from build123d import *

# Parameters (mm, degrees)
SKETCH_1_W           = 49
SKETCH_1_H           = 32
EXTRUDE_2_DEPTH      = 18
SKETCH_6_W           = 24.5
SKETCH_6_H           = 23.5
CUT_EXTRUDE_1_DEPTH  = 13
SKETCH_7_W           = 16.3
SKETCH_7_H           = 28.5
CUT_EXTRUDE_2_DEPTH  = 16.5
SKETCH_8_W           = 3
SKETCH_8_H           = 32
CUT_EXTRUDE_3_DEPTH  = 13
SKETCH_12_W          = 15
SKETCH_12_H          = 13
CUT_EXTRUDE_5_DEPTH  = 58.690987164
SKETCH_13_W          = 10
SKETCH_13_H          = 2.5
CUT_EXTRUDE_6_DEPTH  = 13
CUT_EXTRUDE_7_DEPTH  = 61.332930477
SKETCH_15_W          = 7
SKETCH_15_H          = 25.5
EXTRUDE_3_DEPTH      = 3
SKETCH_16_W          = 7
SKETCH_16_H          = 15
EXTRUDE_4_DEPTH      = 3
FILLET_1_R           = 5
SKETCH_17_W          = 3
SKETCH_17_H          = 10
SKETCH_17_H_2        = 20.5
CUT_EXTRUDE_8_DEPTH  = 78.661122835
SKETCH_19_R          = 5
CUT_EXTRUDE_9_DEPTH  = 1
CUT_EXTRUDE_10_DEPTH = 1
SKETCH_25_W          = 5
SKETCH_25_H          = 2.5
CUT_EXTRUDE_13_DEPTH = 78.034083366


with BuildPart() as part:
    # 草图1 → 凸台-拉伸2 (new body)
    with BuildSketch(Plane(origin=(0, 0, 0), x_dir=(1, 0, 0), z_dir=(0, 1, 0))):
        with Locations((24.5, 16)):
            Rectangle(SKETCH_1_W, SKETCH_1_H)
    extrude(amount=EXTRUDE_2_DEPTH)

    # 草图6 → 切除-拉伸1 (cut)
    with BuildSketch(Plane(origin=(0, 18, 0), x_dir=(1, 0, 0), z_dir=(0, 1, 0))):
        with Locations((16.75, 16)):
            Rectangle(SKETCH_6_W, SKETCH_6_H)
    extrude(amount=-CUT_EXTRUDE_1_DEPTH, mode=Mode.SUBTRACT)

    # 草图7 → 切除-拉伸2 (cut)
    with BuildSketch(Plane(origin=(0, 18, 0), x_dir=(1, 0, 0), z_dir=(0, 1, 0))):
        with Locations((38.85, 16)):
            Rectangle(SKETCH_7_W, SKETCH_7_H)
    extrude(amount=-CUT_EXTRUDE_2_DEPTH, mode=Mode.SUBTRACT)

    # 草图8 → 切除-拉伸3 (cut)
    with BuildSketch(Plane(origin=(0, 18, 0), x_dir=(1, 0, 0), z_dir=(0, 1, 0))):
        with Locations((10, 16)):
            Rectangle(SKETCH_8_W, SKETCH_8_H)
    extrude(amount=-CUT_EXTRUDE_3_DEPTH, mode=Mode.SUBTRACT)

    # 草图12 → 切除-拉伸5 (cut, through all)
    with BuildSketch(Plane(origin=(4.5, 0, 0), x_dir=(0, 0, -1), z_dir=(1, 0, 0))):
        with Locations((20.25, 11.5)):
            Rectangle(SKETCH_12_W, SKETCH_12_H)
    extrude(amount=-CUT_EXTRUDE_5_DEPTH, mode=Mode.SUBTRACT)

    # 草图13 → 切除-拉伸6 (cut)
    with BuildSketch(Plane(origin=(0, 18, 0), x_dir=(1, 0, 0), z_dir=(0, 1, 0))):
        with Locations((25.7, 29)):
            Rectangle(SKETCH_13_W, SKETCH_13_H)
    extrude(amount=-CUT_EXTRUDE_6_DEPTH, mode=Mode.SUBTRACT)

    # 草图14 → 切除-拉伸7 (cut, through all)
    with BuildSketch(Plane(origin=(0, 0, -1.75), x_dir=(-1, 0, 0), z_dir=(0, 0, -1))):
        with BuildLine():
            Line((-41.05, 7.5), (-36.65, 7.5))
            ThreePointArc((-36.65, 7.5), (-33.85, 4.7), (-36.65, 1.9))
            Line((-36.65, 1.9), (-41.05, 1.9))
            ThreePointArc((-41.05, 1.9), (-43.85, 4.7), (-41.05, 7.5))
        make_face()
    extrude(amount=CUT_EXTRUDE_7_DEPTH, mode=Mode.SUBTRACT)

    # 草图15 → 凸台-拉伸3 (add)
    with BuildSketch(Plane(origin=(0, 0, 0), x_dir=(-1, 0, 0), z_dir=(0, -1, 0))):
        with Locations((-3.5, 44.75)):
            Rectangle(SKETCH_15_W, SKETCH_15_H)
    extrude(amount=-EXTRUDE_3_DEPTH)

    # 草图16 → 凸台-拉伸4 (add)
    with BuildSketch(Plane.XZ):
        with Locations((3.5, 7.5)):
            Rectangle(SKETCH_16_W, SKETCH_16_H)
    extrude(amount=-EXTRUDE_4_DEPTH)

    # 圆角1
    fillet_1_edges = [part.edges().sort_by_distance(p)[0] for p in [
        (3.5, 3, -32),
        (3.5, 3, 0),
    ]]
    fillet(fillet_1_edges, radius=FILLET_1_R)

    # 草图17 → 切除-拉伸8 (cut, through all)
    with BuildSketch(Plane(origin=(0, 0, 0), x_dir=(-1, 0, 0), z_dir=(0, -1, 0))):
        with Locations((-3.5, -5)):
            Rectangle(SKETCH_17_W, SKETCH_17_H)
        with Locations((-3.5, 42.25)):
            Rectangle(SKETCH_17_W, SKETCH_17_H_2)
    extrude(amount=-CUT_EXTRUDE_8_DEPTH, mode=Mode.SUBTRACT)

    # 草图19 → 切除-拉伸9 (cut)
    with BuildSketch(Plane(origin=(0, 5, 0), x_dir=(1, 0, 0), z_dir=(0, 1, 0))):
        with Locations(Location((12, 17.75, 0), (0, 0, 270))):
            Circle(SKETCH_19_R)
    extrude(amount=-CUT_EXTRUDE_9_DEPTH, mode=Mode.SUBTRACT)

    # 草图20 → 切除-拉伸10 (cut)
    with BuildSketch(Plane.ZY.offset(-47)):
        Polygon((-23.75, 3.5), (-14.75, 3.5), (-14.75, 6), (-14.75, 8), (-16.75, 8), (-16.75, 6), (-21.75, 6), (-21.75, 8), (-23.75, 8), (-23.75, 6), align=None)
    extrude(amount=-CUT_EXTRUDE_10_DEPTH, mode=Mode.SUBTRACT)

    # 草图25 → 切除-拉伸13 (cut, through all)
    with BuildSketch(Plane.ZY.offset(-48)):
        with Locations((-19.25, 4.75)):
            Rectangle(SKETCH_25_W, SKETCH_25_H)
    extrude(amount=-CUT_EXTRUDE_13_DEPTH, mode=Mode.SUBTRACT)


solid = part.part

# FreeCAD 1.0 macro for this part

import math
import FreeCAD as App
import Part
import Sketcher
from FreeCAD import Vector


def edges_at(feature, points):
    """Names of the edges that pass closest to the given points."""
    edges = feature.Shape.Edges
    near = lambda p: min(range(len(edges)), key=lambda i: edges[i].distToShape(Part.Vertex(*p))[0])
    return sorted({f"Edge{near(p) + 1}" for p in points})


def add_polygon(sketch, points):
    """Adds a closed chain of lines whose ends are joined by coincident constraints."""
    first, n = sketch.GeometryCount, len(points)
    for a, b in zip(points, points[1:] + points[:1]):
        sketch.addGeometry(Part.LineSegment(App.Vector(*a, 0), App.Vector(*b, 0)), False)
    for i in range(n):
        sketch.addConstraint(Sketcher.Constraint("Coincident", first + i, 2, first + (i + 1) % n, 1))

doc = App.newDocument("Part")
body = doc.addObject("PartDesign::Body", "Body")

sketch1 = body.newObject("Sketcher::SketchObject", "Sketch")
sketch1.AttachmentSupport = (doc.getObject("XZ_Plane"), [""])
sketch1.MapMode = "FlatFace"
add_polygon(sketch1, [(0, -32), (0, 0), (49, 0), (49, -32)])
sketch1.addConstraint(Sketcher.Constraint("Vertical", 0))
sketch1.addConstraint(Sketcher.Constraint("Horizontal", 1))
sketch1.addConstraint(Sketcher.Constraint("Vertical", 2))
sketch1.addConstraint(Sketcher.Constraint("Horizontal", 3))
sketch1.addConstraint(Sketcher.Constraint("Coincident", 0, 2, -1, 1))
sketch1.addConstraint(Sketcher.Constraint("DistanceX", 1, 1, 1, 2, 49.0))
sketch1.addConstraint(Sketcher.Constraint("DistanceY", 0, 1, 0, 2, 32.0))
pad1 = body.newObject("PartDesign::Pad", "Pad")
pad1.Profile = sketch1
pad1.Length = 18
pad1.Reversed = True

sketch2 = body.newObject("Sketcher::SketchObject", "Sketch001")
sketch2.AttachmentSupport = (doc.getObject("XZ_Plane"), [""])
sketch2.MapMode = "FlatFace"
sketch2.AttachmentOffset = App.Placement(Vector(0, 0, -18), App.Rotation())
add_polygon(sketch2, [(4, -28), (4, -4), (29, -4), (29, -28)])
sketch2.addConstraint(Sketcher.Constraint("Vertical", 0))
sketch2.addConstraint(Sketcher.Constraint("Horizontal", 1))
sketch2.addConstraint(Sketcher.Constraint("Vertical", 2))
sketch2.addConstraint(Sketcher.Constraint("Horizontal", 3))
sketch2.addConstraint(Sketcher.Constraint("DistanceX", 1, 1, 1, 2, 24.5))
sketch2.addConstraint(Sketcher.Constraint("DistanceY", 0, 1, 0, 2, 23.5))
sketch2.addConstraint(Sketcher.Constraint("DistanceX", -1, 1, 1, 2, 29.0))
sketch2.addConstraint(Sketcher.Constraint("DistanceY", 0, 2, -1, 1, 4.25))
pocket1 = body.newObject("PartDesign::Pocket", "Pocket")
pocket1.Profile = sketch2
pocket1.Length = 13
pocket1.Reversed = True

sketch3 = body.newObject("Sketcher::SketchObject", "Sketch002")
sketch3.AttachmentSupport = (doc.getObject("XZ_Plane"), [""])
sketch3.MapMode = "FlatFace"
sketch3.AttachmentOffset = App.Placement(Vector(0, 0, -18), App.Rotation())
add_polygon(sketch3, [(31, -30), (31, -2), (47, -2), (47, -30)])
sketch3.addConstraint(Sketcher.Constraint("Vertical", 0))
sketch3.addConstraint(Sketcher.Constraint("Horizontal", 1))
sketch3.addConstraint(Sketcher.Constraint("Vertical", 2))
sketch3.addConstraint(Sketcher.Constraint("Horizontal", 3))
sketch3.addConstraint(Sketcher.Constraint("DistanceX", 1, 1, 1, 2, 16.3))
sketch3.addConstraint(Sketcher.Constraint("DistanceY", 0, 1, 0, 2, 28.5))
sketch3.addConstraint(Sketcher.Constraint("DistanceX", -1, 1, 1, 2, 47.0))
sketch3.addConstraint(Sketcher.Constraint("DistanceY", 0, 2, -1, 1, 1.75))
pocket2 = body.newObject("PartDesign::Pocket", "Pocket001")
pocket2.Profile = sketch3
pocket2.Length = 16.5
pocket2.Reversed = True

sketch4 = body.newObject("Sketcher::SketchObject", "Sketch003")
sketch4.AttachmentSupport = (doc.getObject("XZ_Plane"), [""])
sketch4.MapMode = "FlatFace"
sketch4.AttachmentOffset = App.Placement(Vector(0, 0, -18), App.Rotation())
add_polygon(sketch4, [(8.5, -32), (8.5, 0), (11.5, 0), (11.5, -32)])
sketch4.addConstraint(Sketcher.Constraint("Vertical", 0))
sketch4.addConstraint(Sketcher.Constraint("Horizontal", 1))
sketch4.addConstraint(Sketcher.Constraint("Vertical", 2))
sketch4.addConstraint(Sketcher.Constraint("Horizontal", 3))
sketch4.addConstraint(Sketcher.Constraint("PointOnObject", 0, 2, -1))
sketch4.addConstraint(Sketcher.Constraint("DistanceX", 1, 1, 1, 2, 3.0))
sketch4.addConstraint(Sketcher.Constraint("DistanceY", 0, 1, 0, 2, 32.0))
sketch4.addConstraint(Sketcher.Constraint("DistanceX", -1, 1, 0, 2, 8.5))
pocket3 = body.newObject("PartDesign::Pocket", "Pocket002")
pocket3.Profile = sketch4
pocket3.Length = 13
pocket3.Reversed = True

sketch5 = body.newObject("Sketcher::SketchObject", "Sketch004")
sketch5.AttachmentSupport = (doc.getObject("YZ_Plane"), [""])
sketch5.MapMode = "FlatFace"
sketch5.AttachmentOffset = App.Placement(Vector(0, 0, 4.5), App.Rotation())
add_polygon(sketch5, [(18, -13), (5, -13), (5, -28), (18, -28)])
sketch5.addConstraint(Sketcher.Constraint("Horizontal", 0))
sketch5.addConstraint(Sketcher.Constraint("Vertical", 1))
sketch5.addConstraint(Sketcher.Constraint("Horizontal", 2))
sketch5.addConstraint(Sketcher.Constraint("Vertical", 3))
sketch5.addConstraint(Sketcher.Constraint("DistanceX", 0, 2, 0, 1, 13.0))
sketch5.addConstraint(Sketcher.Constraint("DistanceY", 1, 2, 1, 1, 15.0))
sketch5.addConstraint(Sketcher.Constraint("DistanceX", -1, 1, 0, 2, 5.0))
sketch5.addConstraint(Sketcher.Constraint("DistanceY", 0, 2, -1, 1, 12.75))
pocket4 = body.newObject("PartDesign::Pocket", "Pocket003")
pocket4.Profile = sketch5
pocket4.Type = "ThroughAll"

sketch6 = body.newObject("Sketcher::SketchObject", "Sketch005")
sketch6.AttachmentSupport = (doc.getObject("XZ_Plane"), [""])
sketch6.MapMode = "FlatFace"
sketch6.AttachmentOffset = App.Placement(Vector(0, 0, -18), App.Rotation())
add_polygon(sketch6, [(20.7, -30.2), (20.7, -27.8), (30.7, -27.8), (30.7, -30.2)])
sketch6.addConstraint(Sketcher.Constraint("Vertical", 0))
sketch6.addConstraint(Sketcher.Constraint("Horizontal", 1))
sketch6.addConstraint(Sketcher.Constraint("Vertical", 2))
sketch6.addConstraint(Sketcher.Constraint("Horizontal", 3))
sketch6.addConstraint(Sketcher.Constraint("DistanceX", 1, 1, 1, 2, 10.0))
sketch6.addConstraint(Sketcher.Constraint("DistanceY", 0, 1, 0, 2, 2.5))
sketch6.addConstraint(Sketcher.Constraint("DistanceX", -1, 1, 0, 2, 20.7))
sketch6.addConstraint(Sketcher.Constraint("DistanceY", 0, 2, -1, 1, 27.75))
pocket5 = body.newObject("PartDesign::Pocket", "Pocket004")
pocket5.Profile = sketch6
pocket5.Length = 13
pocket5.Reversed = True

sketch7 = body.newObject("Sketcher::SketchObject", "Sketch006")
sketch7.AttachmentSupport = (doc.getObject("XY_Plane"), [""])
sketch7.MapMode = "FlatFace"
sketch7.AttachmentOffset = App.Placement(Vector(0, 0, -1.75), App.Rotation())
sketch7.addGeometry(Part.LineSegment(Vector(36.6, 7.5, 0), Vector(41, 7.5, 0)), False)
sketch7.addGeometry(Part.ArcOfCircle(Part.Circle(Vector(41, 4.7, 0), Vector(0, 0, 1), 2.8), math.radians(-90), math.radians(90)), False)
sketch7.addGeometry(Part.LineSegment(Vector(41, 1.9, 0), Vector(36.6, 1.9, 0)), False)
sketch7.addGeometry(Part.ArcOfCircle(Part.Circle(Vector(36.6, 4.7, 0), Vector(0, 0, 1), 2.8), math.radians(90), math.radians(270)), False)
sketch7.addConstraint(Sketcher.Constraint("Tangent", 0, 2, 1, 2))
sketch7.addConstraint(Sketcher.Constraint("Tangent", 1, 1, 2, 1))
sketch7.addConstraint(Sketcher.Constraint("Tangent", 2, 2, 3, 2))
sketch7.addConstraint(Sketcher.Constraint("Tangent", 3, 1, 0, 1))
sketch7.addConstraint(Sketcher.Constraint("Horizontal", 0))
sketch7.addConstraint(Sketcher.Constraint("Horizontal", 2))
sketch7.addConstraint(Sketcher.Constraint("Radius", 1, 2.8))
sketch7.addConstraint(Sketcher.Constraint("DistanceX", 0, 1, 0, 2, 4.4))
sketch7.addConstraint(Sketcher.Constraint("DistanceY", -1, 1, 1, 3, 4.7))
sketch7.addConstraint(Sketcher.Constraint("DistanceX", -1, 1, 1, 3, 41.05))
pocket6 = body.newObject("PartDesign::Pocket", "Pocket005")
pocket6.Profile = sketch7
pocket6.Type = "ThroughAll"

sketch8 = body.newObject("Sketcher::SketchObject", "Sketch007")
sketch8.AttachmentSupport = (doc.getObject("XZ_Plane"), [""])
sketch8.MapMode = "FlatFace"
add_polygon(sketch8, [(7, -58), (7, -32), (0, -32), (0, -58)])
sketch8.addConstraint(Sketcher.Constraint("Vertical", 0))
sketch8.addConstraint(Sketcher.Constraint("Horizontal", 1))
sketch8.addConstraint(Sketcher.Constraint("Vertical", 2))
sketch8.addConstraint(Sketcher.Constraint("Horizontal", 3))
sketch8.addConstraint(Sketcher.Constraint("PointOnObject", 1, 2, -2))
sketch8.addConstraint(Sketcher.Constraint("DistanceX", 1, 2, 1, 1, 7.0))
sketch8.addConstraint(Sketcher.Constraint("DistanceY", 0, 1, 0, 2, 25.5))
sketch8.addConstraint(Sketcher.Constraint("DistanceY", 0, 2, -1, 1, 32.0))
pad2 = body.newObject("PartDesign::Pad", "Pad001")
pad2.Profile = sketch8
pad2.Length = 3
pad2.Reversed = True

sketch9 = body.newObject("Sketcher::SketchObject", "Sketch008")
sketch9.AttachmentSupport = (doc.getObject("XZ_Plane"), [""])
sketch9.MapMode = "FlatFace"
add_polygon(sketch9, [(0, 15), (0, 0), (7, 0), (7, 15)])
sketch9.addConstraint(Sketcher.Constraint("Vertical", 0))
sketch9.addConstraint(Sketcher.Constraint("Horizontal", 1))
sketch9.addConstraint(Sketcher.Constraint("Vertical", 2))
sketch9.addConstraint(Sketcher.Constraint("Horizontal", 3))
sketch9.addConstraint(Sketcher.Constraint("Coincident", 0, 2, -1, 1))
sketch9.addConstraint(Sketcher.Constraint("DistanceX", 1, 1, 1, 2, 7.0))
sketch9.addConstraint(Sketcher.Constraint("DistanceY", 0, 2, 0, 1, 15.0))
pad3 = body.newObject("PartDesign::Pad", "Pad002")
pad3.Profile = sketch9
pad3.Length = 3
pad3.Reversed = True
doc.recompute()

fillet = body.newObject("PartDesign::Fillet", "Fillet")
fillet.Base = (pad3, edges_at(pad3, [(3.5, 3, -32), (3.5, 3, 0)]))
fillet.Radius = 5

sketch10 = body.newObject("Sketcher::SketchObject", "Sketch009")
sketch10.AttachmentSupport = (doc.getObject("XZ_Plane"), [""])
sketch10.MapMode = "FlatFace"
add_polygon(sketch10, [(5, 0), (5, 10), (2, 10), (2, 0)])
add_polygon(sketch10, [(5, -52.5), (5, -32), (2, -32), (2, -52.5)])
sketch10.addConstraint(Sketcher.Constraint("Vertical", 0))
sketch10.addConstraint(Sketcher.Constraint("Horizontal", 1))
sketch10.addConstraint(Sketcher.Constraint("Vertical", 2))
sketch10.addConstraint(Sketcher.Constraint("Horizontal", 3))
sketch10.addConstraint(Sketcher.Constraint("Vertical", 4))
sketch10.addConstraint(Sketcher.Constraint("Horizontal", 5))
sketch10.addConstraint(Sketcher.Constraint("Vertical", 6))
sketch10.addConstraint(Sketcher.Constraint("Horizontal", 7))
sketch10.addConstraint(Sketcher.Constraint("PointOnObject", 2, 2, -1))
sketch10.addConstraint(Sketcher.Constraint("Vertical", 3, 2, 4, 2))
sketch10.addConstraint(Sketcher.Constraint("Vertical", 2, 2, 5, 2))
sketch10.addConstraint(Sketcher.Constraint("DistanceX", 1, 2, 1, 1, 3.0))
sketch10.addConstraint(Sketcher.Constraint("DistanceY", 0, 1, 0, 2, 10.0))
sketch10.addConstraint(Sketcher.Constraint("DistanceY", 4, 1, 4, 2, 20.5))
sketch10.addConstraint(Sketcher.Constraint("DistanceX", -1, 1, 0, 2, 5.0))
sketch10.addConstraint(Sketcher.Constraint("DistanceY", 4, 2, -1, 1, 32.0))
pocket7 = body.newObject("PartDesign::Pocket", "Pocket006")
pocket7.Profile = sketch10
pocket7.Type = "ThroughAll"

sketch11 = body.newObject("Sketcher::SketchObject", "Sketch010")
sketch11.AttachmentSupport = (doc.getObject("XZ_Plane"), [""])
sketch11.MapMode = "FlatFace"
sketch11.AttachmentOffset = App.Placement(Vector(0, 0, -5), App.Rotation())
sketch11.addGeometry(Part.Circle(Vector(12, -18, 0), Vector(0, 0, 1), 5), False)
sketch11.addConstraint(Sketcher.Constraint("Diameter", 0, 10.0))
sketch11.addConstraint(Sketcher.Constraint("DistanceX", -1, 1, 0, 3, 12.0))
sketch11.addConstraint(Sketcher.Constraint("DistanceY", 0, 3, -1, 1, 17.75))
pocket8 = body.newObject("PartDesign::Pocket", "Pocket007")
pocket8.Profile = sketch11
pocket8.Length = 1
pocket8.Reversed = True

sketch12 = body.newObject("Sketcher::SketchObject", "Sketch011")
sketch12.AttachmentSupport = (doc.getObject("YZ_Plane"), [""])
sketch12.MapMode = "FlatFace"
sketch12.AttachmentOffset = App.Placement(Vector(0, 0, 47), App.Rotation())
add_polygon(sketch12, [(3.5, -23.8), (3.5, -14.8), (8, -14.8), (8, -16.8), (6, -16.8), (6, -21.8), (8, -21.8), (8, -23.8)])
sketch12.addConstraint(Sketcher.Constraint("Vertical", 0))
sketch12.addConstraint(Sketcher.Constraint("Horizontal", 1))
sketch12.addConstraint(Sketcher.Constraint("Vertical", 2))
sketch12.addConstraint(Sketcher.Constraint("Horizontal", 3))
sketch12.addConstraint(Sketcher.Constraint("Vertical", 4))
sketch12.addConstraint(Sketcher.Constraint("Horizontal", 5))
sketch12.addConstraint(Sketcher.Constraint("Vertical", 6))
sketch12.addConstraint(Sketcher.Constraint("Horizontal", 7))
sketch12.addConstraint(Sketcher.Constraint("Vertical", 2, 2, 5, 2))
sketch12.addConstraint(Sketcher.Constraint("Equal", 5, 2))
sketch12.addConstraint(Sketcher.Constraint("Equal", 2, 6))
sketch12.addConstraint(Sketcher.Constraint("DistanceX", 3, 2, 3, 1, 2.0))
sketch12.addConstraint(Sketcher.Constraint("DistanceY", 0, 1, 0, 2, 9.0))
sketch12.addConstraint(Sketcher.Constraint("DistanceX", 1, 1, 1, 2, 4.5))
sketch12.addConstraint(Sketcher.Constraint("DistanceX", -1, 1, 1, 2, 8.0))
sketch12.addConstraint(Sketcher.Constraint("DistanceY", 0, 2, -1, 1, 14.75))
pocket9 = body.newObject("PartDesign::Pocket", "Pocket008")
pocket9.Profile = sketch12
pocket9.Length = 1
pocket9.Reversed = True

sketch13 = body.newObject("Sketcher::SketchObject", "Sketch012")
sketch13.AttachmentSupport = (doc.getObject("YZ_Plane"), [""])
sketch13.MapMode = "FlatFace"
sketch13.AttachmentOffset = App.Placement(Vector(0, 0, 48), App.Rotation())
add_polygon(sketch13, [(6, -21.8), (3.5, -21.8), (3.5, -16.8), (6, -16.8)])
sketch13.addConstraint(Sketcher.Constraint("Horizontal", 0))
sketch13.addConstraint(Sketcher.Constraint("Vertical", 1))
sketch13.addConstraint(Sketcher.Constraint("Horizontal", 2))
sketch13.addConstraint(Sketcher.Constraint("Vertical", 3))
sketch13.addConstraint(Sketcher.Constraint("DistanceY", 1, 1, 1, 2, 5.0))
sketch13.addConstraint(Sketcher.Constraint("DistanceX", 0, 2, 0, 1, 2.5))
sketch13.addConstraint(Sketcher.Constraint("DistanceX", -1, 1, 2, 2, 6.0))
sketch13.addConstraint(Sketcher.Constraint("DistanceY", 0, 2, -1, 1, 21.75))
pocket10 = body.newObject("PartDesign::Pocket", "Pocket009")
pocket10.Profile = sketch13
pocket10.Type = "ThroughAll"
pocket10.Reversed = True

doc.recompute()
